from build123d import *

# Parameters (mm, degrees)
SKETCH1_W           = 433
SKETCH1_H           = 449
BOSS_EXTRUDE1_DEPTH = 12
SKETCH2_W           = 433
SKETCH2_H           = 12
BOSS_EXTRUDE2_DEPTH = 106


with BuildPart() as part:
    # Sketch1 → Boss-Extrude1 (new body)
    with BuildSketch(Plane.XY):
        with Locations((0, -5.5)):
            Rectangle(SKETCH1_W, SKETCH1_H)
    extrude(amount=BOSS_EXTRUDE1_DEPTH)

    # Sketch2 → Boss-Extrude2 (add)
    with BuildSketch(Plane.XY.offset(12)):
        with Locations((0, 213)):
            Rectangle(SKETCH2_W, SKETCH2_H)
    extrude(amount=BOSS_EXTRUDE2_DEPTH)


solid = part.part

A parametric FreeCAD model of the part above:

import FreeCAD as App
import Part
import Sketcher

V = App.Vector
Q = App.Units.Quantity


def add_polygon(sketch, points):
    """Adds a closed chain of lines whose ends are joined by coincident constraints."""
    first, n = sketch.GeometryCount, len(points)
    for a, b in zip(points, points[1:] + points[:1]):
        sketch.addGeometry(Part.LineSegment(App.Vector(*a, 0), App.Vector(*b, 0)), False)
    for i in range(n):
        sketch.addConstraint(Sketcher.Constraint("Coincident", first + i, 2, first + (i + 1) % n, 1))

doc = App.newDocument("Part")
body = doc.addObject("PartDesign::Body", "Body")

# Sketch on XY plane
sketch1 = body.newObject("Sketcher::SketchObject", "Sketch")
sketch1.AttachmentSupport = (doc.getObject("XY_Plane"), [""])
sketch1.MapMode = "FlatFace"
add_polygon(sketch1, [(-216, 219), (-216, -230), (216, -230), (216, 219)])  # lines 0-3
sketch1.addConstraint(Sketcher.Constraint("Vertical", 0))
sketch1.addConstraint(Sketcher.Constraint("Horizontal", 1))
sketch1.addConstraint(Sketcher.Constraint("Vertical", 2))
sketch1.addConstraint(Sketcher.Constraint("Horizontal", 3))
sketch1.addConstraint(Sketcher.Constraint("DistanceX", 1, 1, 1, 2, Q("433 mm")))
sketch1.addConstraint(Sketcher.Constraint("DistanceY", 0, 2, 0, 1, Q("449 mm")))
sketch1.addConstraint(Sketcher.Constraint("DistanceY", 0, 2, -1, 1, Q("230 mm")))
sketch1.addConstraint(Sketcher.Constraint("DistanceX", 0, 2, -1, 1, Q("216.5 mm")))
pad1 = body.newObject("PartDesign::Pad", "Pad")
pad1.Profile = sketch1
pad1.Length = 12

# Sketch on XY plane
sketch2 = body.newObject("Sketcher::SketchObject", "Sketch001")
sketch2.AttachmentSupport = (doc.getObject("XY_Plane"), [""])
sketch2.MapMode = "FlatFace"
sketch2.AttachmentOffset = App.Placement(V(0, 0, 12), App.Rotation())
add_polygon(sketch2, [(-216, 219), (-216, 207), (216, 207), (216, 219)])  # lines 0-3
sketch2.addConstraint(Sketcher.Constraint("Vertical", 0))
sketch2.addConstraint(Sketcher.Constraint("Horizontal", 1))
sketch2.addConstraint(Sketcher.Constraint("Vertical", 2))
sketch2.addConstraint(Sketcher.Constraint("Horizontal", 3))
sketch2.addConstraint(Sketcher.Constraint("DistanceX", 1, 1, 1, 2, Q("433 mm")))
sketch2.addConstraint(Sketcher.Constraint("DistanceY", 0, 2, 0, 1, Q("12 mm")))
sketch2.addConstraint(Sketcher.Constraint("DistanceY", -1, 1, 0, 2, Q("207 mm")))
sketch2.addConstraint(Sketcher.Constraint("DistanceX", 0, 2, -1, 1, Q("216.5 mm")))
pad2 = body.newObject("PartDesign::Pad", "Pad001")
pad2.Profile = sketch2
pad2.Length = 106

doc.recompute()
